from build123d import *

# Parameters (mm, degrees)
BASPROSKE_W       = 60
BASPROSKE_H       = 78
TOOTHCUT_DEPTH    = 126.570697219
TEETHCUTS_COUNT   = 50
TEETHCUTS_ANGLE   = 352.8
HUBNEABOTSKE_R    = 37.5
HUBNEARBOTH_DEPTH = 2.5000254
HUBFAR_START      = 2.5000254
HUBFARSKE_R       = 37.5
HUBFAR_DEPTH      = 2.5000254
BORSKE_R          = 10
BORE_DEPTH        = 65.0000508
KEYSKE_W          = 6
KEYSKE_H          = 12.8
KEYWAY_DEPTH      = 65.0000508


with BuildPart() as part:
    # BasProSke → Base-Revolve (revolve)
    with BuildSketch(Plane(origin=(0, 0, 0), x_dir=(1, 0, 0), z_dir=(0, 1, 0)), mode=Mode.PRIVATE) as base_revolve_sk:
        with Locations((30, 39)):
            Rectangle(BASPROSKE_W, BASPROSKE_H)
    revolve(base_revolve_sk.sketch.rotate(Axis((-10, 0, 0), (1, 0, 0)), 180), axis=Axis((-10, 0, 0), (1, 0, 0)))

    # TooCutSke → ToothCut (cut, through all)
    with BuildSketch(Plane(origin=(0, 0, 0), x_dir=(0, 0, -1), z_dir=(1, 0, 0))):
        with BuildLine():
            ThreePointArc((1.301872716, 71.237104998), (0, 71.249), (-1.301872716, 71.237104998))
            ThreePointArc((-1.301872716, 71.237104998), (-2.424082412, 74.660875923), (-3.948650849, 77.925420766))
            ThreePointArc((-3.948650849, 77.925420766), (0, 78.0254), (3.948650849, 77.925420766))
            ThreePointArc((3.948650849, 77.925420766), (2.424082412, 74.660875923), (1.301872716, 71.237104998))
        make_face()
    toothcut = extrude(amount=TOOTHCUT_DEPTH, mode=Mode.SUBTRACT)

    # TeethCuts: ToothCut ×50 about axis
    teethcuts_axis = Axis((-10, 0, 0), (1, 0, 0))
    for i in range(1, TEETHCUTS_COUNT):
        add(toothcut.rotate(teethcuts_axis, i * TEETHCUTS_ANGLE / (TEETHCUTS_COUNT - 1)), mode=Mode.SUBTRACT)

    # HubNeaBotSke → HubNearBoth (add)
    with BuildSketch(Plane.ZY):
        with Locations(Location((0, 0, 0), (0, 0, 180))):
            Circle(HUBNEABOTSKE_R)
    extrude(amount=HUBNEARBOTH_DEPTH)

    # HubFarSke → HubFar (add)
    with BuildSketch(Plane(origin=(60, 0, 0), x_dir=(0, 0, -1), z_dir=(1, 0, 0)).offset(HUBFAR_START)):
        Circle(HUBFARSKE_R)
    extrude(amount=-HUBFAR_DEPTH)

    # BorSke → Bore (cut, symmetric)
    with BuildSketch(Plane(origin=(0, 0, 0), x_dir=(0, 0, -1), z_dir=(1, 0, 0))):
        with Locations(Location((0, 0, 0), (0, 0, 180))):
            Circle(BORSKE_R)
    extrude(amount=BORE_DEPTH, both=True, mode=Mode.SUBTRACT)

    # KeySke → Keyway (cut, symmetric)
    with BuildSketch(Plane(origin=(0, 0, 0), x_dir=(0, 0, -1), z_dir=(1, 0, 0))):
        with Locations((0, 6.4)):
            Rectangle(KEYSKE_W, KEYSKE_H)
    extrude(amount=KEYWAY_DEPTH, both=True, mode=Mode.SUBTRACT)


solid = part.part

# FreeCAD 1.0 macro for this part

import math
import FreeCAD as App
import Part
import Sketcher
from FreeCAD import Vector
Q = App.Units.Quantity


def add_polygon(sketch, points):
    """Adds a closed chain of lines whose ends are joined by coincident constraints."""
    first, n = sketch.GeometryCount, len(points)
    for a, b in zip(points, points[1:] + points[:1]):
        sketch.addGeometry(Part.LineSegment(App.Vector(*a, 0), App.Vector(*b, 0)), False)
    for i in range(n):
        sketch.addConstraint(Sketcher.Constraint("Coincident", first + i, 2, first + (i + 1) % n, 1))

doc = App.newDocument("Part")
body = doc.addObject("PartDesign::Body", "Body")

# Sketch on XZ plane
sketch1 = body.newObject("Sketcher::SketchObject", "Sketch")
sketch1.AttachmentSupport = (doc.getObject("XZ_Plane"), [""])
sketch1.MapMode = "FlatFace"
add_polygon(sketch1, [(0, -78), (0, 0), (60, 0), (60, -78)])  # lines 0-3
sketch1.addConstraint(Sketcher.Constraint("Vertical", 0))
sketch1.addConstraint(Sketcher.Constraint("Horizontal", 1))
sketch1.addConstraint(Sketcher.Constraint("Vertical", 2))
sketch1.addConstraint(Sketcher.Constraint("Horizontal", 3))
sketch1.addConstraint(Sketcher.Constraint("Coincident", 0, 2, -1, 1))
sketch1.addConstraint(Sketcher.Constraint("DistanceX", 1, 1, 1, 2, Q("60 mm")))
sketch1.addConstraint(Sketcher.Constraint("DistanceY", 0, 1, 0, 2, Q("78 mm")))
revolution = body.newObject("PartDesign::Revolution", "Revolution")
revolution.Profile = sketch1
revolution.ReferenceAxis = (sketch1, ["H_Axis"])
revolution.Angle = 360

# Sketch on YZ plane
sketch2 = body.newObject("Sketcher::SketchObject", "Sketch001")
sketch2.AttachmentSupport = (doc.getObject("YZ_Plane"), [""])
sketch2.MapMode = "FlatFace"
sketch2.addGeometry(Part.ArcOfCircle(Part.Circle(Vector(0, 0, 0), Vector(0, 0, 1), 71.2), math.radians(-1.05), math.radians(1.05)), False)
sketch2.addGeometry(Part.ArcOfCircle(Part.Circle(Vector(63.6, -30.3, 0), Vector(0, 0, 1), 30), math.radians(61.52), math.radians(75.3)), False)
sketch2.addGeometry(Part.ArcOfCircle(Part.Circle(Vector(0, 0, 0), Vector(0, 0, 1), 78), math.radians(-2.9), math.radians(2.9)), False)
sketch2.addGeometry(Part.ArcOfCircle(Part.Circle(Vector(63.6, 30.3, 0), Vector(0, 0, 1), 30), math.radians(-75.3), math.radians(-61.52)), False)
sketch2.addConstraint(Sketcher.Constraint("Coincident", 0, 1, 1, 2))
sketch2.addConstraint(Sketcher.Constraint("Coincident", 1, 1, 2, 1))
sketch2.addConstraint(Sketcher.Constraint("Coincident", 2, 2, 3, 2))
sketch2.addConstraint(Sketcher.Constraint("Coincident", 3, 1, 0, 2))
sketch2.addConstraint(Sketcher.Constraint("Coincident", 0, 3, -1, 1))
sketch2.addConstraint(Sketcher.Constraint("Coincident", 2, 3, -1, 1))
sketch2.addConstraint(Sketcher.Constraint("Equal", 1, 3))
sketch2.addConstraint(Sketcher.Constraint("Symmetric", 1, 3, 3, 3, -1))
sketch2.addConstraint(Sketcher.Constraint("Radius", 1, Q("30 mm")))
sketch2.addConstraint(Sketcher.Constraint("Radius", 2, Q("78.0254 mm")))
sketch2.addConstraint(Sketcher.Constraint("Radius", 0, Q("71.249003 mm")))
sketch2.addConstraint(Sketcher.Constraint("DistanceY", 1, 3, 1, 1, Q("26.370601 mm")))
sketch2.addConstraint(Sketcher.Constraint("DistanceY", 1, 1, 2, 2, Q("7.897302 mm")))
pocket1 = body.newObject("PartDesign::Pocket", "Pocket")
pocket1.Profile = sketch2
pocket1.Type = "ThroughAll"
pocket1.Reversed = True
doc.recompute()

polarpattern = body.newObject("PartDesign::PolarPattern", "PolarPattern")
polarpattern.Originals = [pocket1]
polarpattern.Axis = (doc.getObject("X_Axis"), [""])
polarpattern.Angle = 360
polarpattern.Occurrences = 50
body.Tip = polarpattern

# Sketch on YZ plane
sketch3 = body.newObject("Sketcher::SketchObject", "Sketch002")
sketch3.AttachmentSupport = (doc.getObject("YZ_Plane"), [""])
sketch3.MapMode = "FlatFace"
sketch3.addGeometry(Part.Circle(Vector(0, 0, 0), Vector(0, 0, 1), 38), False)
sketch3.addConstraint(Sketcher.Constraint("Coincident", 0, 3, -1, 1))
sketch3.addConstraint(Sketcher.Constraint("Diameter", 0, Q("75 mm")))
pad1 = body.newObject("PartDesign::Pad", "Pad")
pad1.Profile = sketch3
pad1.Length = 2.500025
pad1.Reversed = True

# Sketch on YZ plane
sketch4 = body.newObject("Sketcher::SketchObject", "Sketch003")
sketch4.AttachmentSupport = (doc.getObject("YZ_Plane"), [""])
sketch4.MapMode = "FlatFace"
sketch4.AttachmentOffset = App.Placement(Vector(0, 0, 62.500025), App.Rotation())
sketch4.addGeometry(Part.Circle(Vector(0, 0, 0), Vector(0, 0, 1), 38), False)
sketch4.addConstraint(Sketcher.Constraint("Coincident", 0, 3, -1, 1))
sketch4.addConstraint(Sketcher.Constraint("Diameter", 0, Q("75 mm")))
pad2 = body.newObject("PartDesign::Pad", "Pad001")
pad2.Profile = sketch4
pad2.Length = 2.500025
pad2.Reversed = True

# Sketch on YZ plane
sketch5 = body.newObject("Sketcher::SketchObject", "Sketch004")
sketch5.AttachmentSupport = (doc.getObject("YZ_Plane"), [""])
sketch5.MapMode = "FlatFace"
sketch5.addGeometry(Part.Circle(Vector(0, 0, 0), Vector(0, 0, 1), 10), False)
sketch5.addConstraint(Sketcher.Constraint("Coincident", 0, 3, -1, 1))
sketch5.addConstraint(Sketcher.Constraint("Diameter", 0, Q("20 mm")))
pocket2 = body.newObject("PartDesign::Pocket", "Pocket001")
pocket2.Profile = sketch5
pocket2.Length = 130.000102
pocket2.Midplane = True

# Sketch on YZ plane
sketch6 = body.newObject("Sketcher::SketchObject", "Sketch005")
sketch6.AttachmentSupport = (doc.getObject("YZ_Plane"), [""])
sketch6.MapMode = "FlatFace"
add_polygon(sketch6, [(13, 3), (0, 3), (0, -3), (13, -3)])  # lines 0-3
sketch6.addConstraint(Sketcher.Constraint("Horizontal", 0))
sketch6.addConstraint(Sketcher.Constraint("Vertical", 1))
sketch6.addConstraint(Sketcher.Constraint("Horizontal", 2))
sketch6.addConstraint(Sketcher.Constraint("Vertical", 3))
sketch6.addConstraint(Sketcher.Constraint("Symmetric", 0, 2, 1, 2, -1, 1))
sketch6.addConstraint(Sketcher.Constraint("DistanceY", 1, 2, 1, 1, Q("6 mm")))
sketch6.addConstraint(Sketcher.Constraint("DistanceX", 0, 2, 0, 1, Q("12.8 mm")))
pocket3 = body.newObject("PartDesign::Pocket", "Pocket002")
pocket3.Profile = sketch6
pocket3.Length = 130.000102
pocket3.Midplane = True

doc.recompute()
